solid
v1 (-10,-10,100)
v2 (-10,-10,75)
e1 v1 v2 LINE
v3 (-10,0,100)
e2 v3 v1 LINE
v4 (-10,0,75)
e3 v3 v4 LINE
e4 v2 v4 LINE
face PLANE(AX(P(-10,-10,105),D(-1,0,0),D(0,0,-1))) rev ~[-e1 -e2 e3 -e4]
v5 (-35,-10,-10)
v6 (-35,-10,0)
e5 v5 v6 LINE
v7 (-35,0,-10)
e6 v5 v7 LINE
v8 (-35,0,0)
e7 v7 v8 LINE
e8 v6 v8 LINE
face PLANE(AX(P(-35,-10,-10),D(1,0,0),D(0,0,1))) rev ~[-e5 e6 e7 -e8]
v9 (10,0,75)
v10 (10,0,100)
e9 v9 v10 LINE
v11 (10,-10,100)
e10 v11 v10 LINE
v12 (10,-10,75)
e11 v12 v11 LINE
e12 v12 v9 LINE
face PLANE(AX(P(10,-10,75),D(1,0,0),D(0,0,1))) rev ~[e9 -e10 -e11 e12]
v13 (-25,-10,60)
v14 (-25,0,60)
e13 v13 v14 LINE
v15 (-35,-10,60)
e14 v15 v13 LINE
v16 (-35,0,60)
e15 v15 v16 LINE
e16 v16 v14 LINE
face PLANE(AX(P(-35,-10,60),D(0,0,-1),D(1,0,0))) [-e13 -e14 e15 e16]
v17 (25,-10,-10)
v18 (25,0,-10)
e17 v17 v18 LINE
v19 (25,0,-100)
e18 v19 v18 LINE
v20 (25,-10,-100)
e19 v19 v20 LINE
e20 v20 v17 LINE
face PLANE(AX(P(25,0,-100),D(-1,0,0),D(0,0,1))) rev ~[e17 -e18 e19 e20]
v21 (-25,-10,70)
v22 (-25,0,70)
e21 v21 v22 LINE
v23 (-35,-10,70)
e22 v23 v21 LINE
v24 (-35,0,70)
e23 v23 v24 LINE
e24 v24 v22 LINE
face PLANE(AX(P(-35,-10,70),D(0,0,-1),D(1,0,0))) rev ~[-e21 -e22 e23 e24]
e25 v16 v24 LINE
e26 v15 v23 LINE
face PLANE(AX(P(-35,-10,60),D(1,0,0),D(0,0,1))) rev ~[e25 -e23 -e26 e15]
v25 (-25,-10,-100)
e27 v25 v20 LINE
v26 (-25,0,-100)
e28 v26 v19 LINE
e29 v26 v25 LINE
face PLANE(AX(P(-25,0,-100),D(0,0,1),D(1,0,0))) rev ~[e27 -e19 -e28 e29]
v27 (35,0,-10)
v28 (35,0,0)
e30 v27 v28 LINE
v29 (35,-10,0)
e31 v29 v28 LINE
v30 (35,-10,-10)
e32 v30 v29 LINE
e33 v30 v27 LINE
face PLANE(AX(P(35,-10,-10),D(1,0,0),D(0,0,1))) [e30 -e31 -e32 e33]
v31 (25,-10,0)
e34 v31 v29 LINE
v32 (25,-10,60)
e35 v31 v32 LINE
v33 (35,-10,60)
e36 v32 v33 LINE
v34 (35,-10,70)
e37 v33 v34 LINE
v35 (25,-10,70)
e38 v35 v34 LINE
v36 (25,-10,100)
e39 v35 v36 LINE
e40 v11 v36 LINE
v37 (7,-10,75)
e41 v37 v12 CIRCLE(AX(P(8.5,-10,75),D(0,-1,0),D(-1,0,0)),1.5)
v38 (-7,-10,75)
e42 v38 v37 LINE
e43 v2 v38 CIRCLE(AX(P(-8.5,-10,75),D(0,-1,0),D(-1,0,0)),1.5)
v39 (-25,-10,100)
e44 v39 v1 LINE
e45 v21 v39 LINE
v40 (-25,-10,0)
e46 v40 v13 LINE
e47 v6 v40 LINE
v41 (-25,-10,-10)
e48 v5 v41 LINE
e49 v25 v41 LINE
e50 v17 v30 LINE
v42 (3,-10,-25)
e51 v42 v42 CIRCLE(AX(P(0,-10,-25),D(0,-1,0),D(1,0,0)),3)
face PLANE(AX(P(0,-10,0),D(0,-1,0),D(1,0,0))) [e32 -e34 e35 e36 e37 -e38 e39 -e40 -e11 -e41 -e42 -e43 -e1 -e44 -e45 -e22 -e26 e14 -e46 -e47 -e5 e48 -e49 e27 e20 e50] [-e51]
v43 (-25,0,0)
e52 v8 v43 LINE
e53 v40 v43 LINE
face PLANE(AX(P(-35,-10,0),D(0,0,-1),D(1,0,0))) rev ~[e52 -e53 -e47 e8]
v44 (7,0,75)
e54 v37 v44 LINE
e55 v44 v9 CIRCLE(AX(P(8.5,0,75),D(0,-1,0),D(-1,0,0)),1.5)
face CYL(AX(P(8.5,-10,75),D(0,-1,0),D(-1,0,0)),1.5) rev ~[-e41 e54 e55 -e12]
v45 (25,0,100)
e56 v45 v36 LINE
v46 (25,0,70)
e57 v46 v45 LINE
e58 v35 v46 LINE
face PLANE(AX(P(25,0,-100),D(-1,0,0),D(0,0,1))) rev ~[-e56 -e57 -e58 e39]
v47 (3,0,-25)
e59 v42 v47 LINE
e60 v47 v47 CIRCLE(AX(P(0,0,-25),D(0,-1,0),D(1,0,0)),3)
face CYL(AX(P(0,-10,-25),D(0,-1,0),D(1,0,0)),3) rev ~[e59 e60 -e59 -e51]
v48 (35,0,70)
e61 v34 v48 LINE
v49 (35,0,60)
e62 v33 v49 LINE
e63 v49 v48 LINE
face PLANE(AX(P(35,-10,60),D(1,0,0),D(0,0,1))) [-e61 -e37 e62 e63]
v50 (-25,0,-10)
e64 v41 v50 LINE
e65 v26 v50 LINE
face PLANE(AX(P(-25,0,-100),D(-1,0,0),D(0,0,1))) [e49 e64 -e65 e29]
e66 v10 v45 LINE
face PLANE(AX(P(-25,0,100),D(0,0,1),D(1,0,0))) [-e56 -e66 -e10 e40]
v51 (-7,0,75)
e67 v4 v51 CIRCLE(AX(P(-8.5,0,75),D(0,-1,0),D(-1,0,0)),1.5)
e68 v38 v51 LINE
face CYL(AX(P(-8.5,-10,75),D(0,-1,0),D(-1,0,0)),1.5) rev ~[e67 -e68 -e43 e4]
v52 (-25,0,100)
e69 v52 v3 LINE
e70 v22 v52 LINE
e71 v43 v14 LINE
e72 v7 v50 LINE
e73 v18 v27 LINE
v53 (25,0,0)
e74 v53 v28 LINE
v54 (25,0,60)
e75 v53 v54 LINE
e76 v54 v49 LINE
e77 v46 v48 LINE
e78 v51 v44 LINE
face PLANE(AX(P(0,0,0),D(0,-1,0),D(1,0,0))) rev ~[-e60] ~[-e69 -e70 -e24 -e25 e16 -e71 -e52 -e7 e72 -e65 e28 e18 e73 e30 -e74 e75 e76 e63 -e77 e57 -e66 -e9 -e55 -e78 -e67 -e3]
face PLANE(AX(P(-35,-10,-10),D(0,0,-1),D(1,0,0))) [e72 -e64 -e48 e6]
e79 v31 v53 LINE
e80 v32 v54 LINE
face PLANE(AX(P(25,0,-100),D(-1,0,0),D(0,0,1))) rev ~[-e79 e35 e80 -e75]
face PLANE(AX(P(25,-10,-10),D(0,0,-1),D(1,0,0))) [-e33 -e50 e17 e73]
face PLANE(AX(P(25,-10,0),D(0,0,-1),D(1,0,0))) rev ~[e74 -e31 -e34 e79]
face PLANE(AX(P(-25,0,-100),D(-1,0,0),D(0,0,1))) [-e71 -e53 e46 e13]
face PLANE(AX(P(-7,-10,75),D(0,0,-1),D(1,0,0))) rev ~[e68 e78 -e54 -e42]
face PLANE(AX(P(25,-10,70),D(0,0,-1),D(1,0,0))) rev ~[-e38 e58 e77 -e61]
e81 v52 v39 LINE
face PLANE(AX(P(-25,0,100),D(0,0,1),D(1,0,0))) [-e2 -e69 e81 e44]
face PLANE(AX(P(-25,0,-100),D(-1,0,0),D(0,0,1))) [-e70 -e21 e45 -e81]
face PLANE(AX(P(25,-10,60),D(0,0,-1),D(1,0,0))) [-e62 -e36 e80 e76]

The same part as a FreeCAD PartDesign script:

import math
import FreeCAD as App
import Part
import Sketcher
from FreeCAD import Vector
Q = App.Units.Quantity

doc = App.newDocument("Part")
body = doc.addObject("PartDesign::Body", "Body")

# Sketch on XZ plane
sketch1 = body.newObject("Sketcher::SketchObject", "Sketch")
sketch1.AttachmentSupport = (doc.getObject("XZ_Plane"), [""])
sketch1.MapMode = "FlatFace"
sketch1.addGeometry([
    Part.LineSegment(Vector(-25, 100, 0), Vector(-25, -100, 0)),
    Part.LineSegment(Vector(-25, -100, 0), Vector(25, -100, 0)),
    Part.LineSegment(Vector(25, -100, 0), Vector(25, 100, 0)),
    Part.LineSegment(Vector(25, 100, 0), Vector(-25, 100, 0)),
], False)
sketch1.addConstraint([
    Sketcher.Constraint("Coincident", 0, 2, 1, 1),
    Sketcher.Constraint("Coincident", 1, 2, 2, 1),
    Sketcher.Constraint("Coincident", 2, 2, 3, 1),
    Sketcher.Constraint("Coincident", 3, 2, 0, 1),
    Sketcher.Constraint("Vertical", 0),
    Sketcher.Constraint("Horizontal", 1),
    Sketcher.Constraint("Vertical", 2),
    Sketcher.Constraint("Horizontal", 3),
    Sketcher.Constraint("Symmetric", 0, 2, 2, 2, -1, 1),
    Sketcher.Constraint("DistanceX", 1, 1, 1, 2, Q("50 mm")),
    Sketcher.Constraint("DistanceY", 0, 2, 0, 1, Q("200 mm")),
])
pad1 = body.newObject("PartDesign::Pad", "Pad")
pad1.Profile = sketch1
pad1.Length = 10

# Sketch on XZ plane
sketch2 = body.newObject("Sketcher::SketchObject", "Sketch001")
sketch2.AttachmentSupport = (doc.getObject("XZ_Plane"), [""])
sketch2.MapMode = "FlatFace"
sketch2.AttachmentOffset = App.Placement(Vector(0, 0, 10), App.Rotation())
sketch2.addGeometry(Part.Circle(Vector(0, -25, 0), Vector(0, 0, 1), 3), False)
sketch2.addConstraint([
    Sketcher.Constraint("PointOnObject", 0, 3, -2),
    Sketcher.Constraint("Diameter", 0, Q("6 mm")),
    Sketcher.Constraint("DistanceY", 0, 3, -1, 1, Q("25 mm")),
])
pocket1 = body.newObject("PartDesign::Pocket", "Pocket")
pocket1.Profile = sketch2
pocket1.Length = 25

# Sketch on XZ plane
sketch3 = body.newObject("Sketcher::SketchObject", "Sketch002")
sketch3.AttachmentSupport = (doc.getObject("XZ_Plane"), [""])
sketch3.MapMode = "FlatFace"
sketch3.AttachmentOffset = App.Placement(Vector(0, 0, 10), App.Rotation())
sketch3.addGeometry([
    Part.LineSegment(Vector(10, 105, 0), Vector(-10, 105, 0)),  # 0
    Part.LineSegment(Vector(-10, 105, 0), Vector(-10, 75, 0)),  # 1
    Part.ArcOfCircle(Part.Circle(Vector(-8.5, 75, 0), Vector(0, 0, 1), 1.5), math.radians(180), math.radians(360)),  # 2
    Part.LineSegment(Vector(-7, 75, 0), Vector(7, 75, 0)),  # 3
    Part.ArcOfCircle(Part.Circle(Vector(8.5, 75, 0), Vector(0, 0, 1), 1.5), math.radians(180), math.radians(360)),  # 4
    Part.LineSegment(Vector(10, 75, 0), Vector(10, 105, 0)),  # 5
], False)
sketch3.addConstraint([
    Sketcher.Constraint("Coincident", 0, 2, 1, 1),
    Sketcher.Constraint("Tangent", 1, 2, 2, 1),
    Sketcher.Constraint("Coincident", 2, 2, 3, 1),
    Sketcher.Constraint("Coincident", 3, 2, 4, 1),
    Sketcher.Constraint("Tangent", 4, 2, 5, 1),
    Sketcher.Constraint("Coincident", 5, 2, 0, 1),
    Sketcher.Constraint("Horizontal", 0),
    Sketcher.Constraint("Vertical", 1),
    Sketcher.Constraint("Horizontal", 3),
    Sketcher.Constraint("Vertical", 5),
    Sketcher.Constraint("Equal", 2, 4),
    Sketcher.Constraint("Symmetric", 2, 3, 4, 3, -2),
    Sketcher.Constraint("Horizontal", 1, 2, 2, 2),
    Sketcher.Constraint("Radius", 2, Q("1.5 mm")),
    Sketcher.Constraint("DistanceX", 0, 2, 0, 1, Q("20 mm")),
    Sketcher.Constraint("DistanceY", 1, 2, 1, 1, Q("30 mm")),
    Sketcher.Constraint("DistanceY", -1, 1, 2, 3, Q("75 mm")),
])
pocket2 = body.newObject("PartDesign::Pocket", "Pocket001")
pocket2.Profile = sketch3
pocket2.Length = 25

# Sketch on XZ plane
sketch4 = body.newObject("Sketcher::SketchObject", "Sketch003")
sketch4.AttachmentSupport = (doc.getObject("XZ_Plane"), [""])
sketch4.MapMode = "FlatFace"
sketch4.AttachmentOffset = App.Placement(Vector(0, 0, 10), App.Rotation())
sketch4.addGeometry([
    Part.LineSegment(Vector(-35, 70, 0), Vector(-35, 60, 0)),  # 0
    Part.LineSegment(Vector(-35, 60, 0), Vector(-25, 60, 0)),  # 1
    Part.LineSegment(Vector(-25, 60, 0), Vector(-25, 70, 0)),  # 2
    Part.LineSegment(Vector(-25, 70, 0), Vector(-35, 70, 0)),  # 3
    Part.LineSegment(Vector(25, 70, 0), Vector(25, 60, 0)),  # 4
    Part.LineSegment(Vector(25, 60, 0), Vector(35, 60, 0)),  # 5
    Part.LineSegment(Vector(35, 60, 0), Vector(35, 70, 0)),  # 6
    Part.LineSegment(Vector(35, 70, 0), Vector(25, 70, 0)),  # 7
    Part.LineSegment(Vector(-35, 0, 0), Vector(-35, -10, 0)),  # 8
    Part.LineSegment(Vector(-35, -10, 0), Vector(-25, -10, 0)),  # 9
    Part.LineSegment(Vector(-25, -10, 0), Vector(-25, 0, 0)),  # 10
    Part.LineSegment(Vector(-25, 0, 0), Vector(-35, 0, 0)),  # 11
    Part.LineSegment(Vector(25, 0, 0), Vector(25, -10, 0)),  # 12
    Part.LineSegment(Vector(25, -10, 0), Vector(35, -10, 0)),  # 13
    Part.LineSegment(Vector(35, -10, 0), Vector(35, 0, 0)),  # 14
    Part.LineSegment(Vector(35, 0, 0), Vector(25, 0, 0)),  # 15
], False)
sketch4.addConstraint([
    Sketcher.Constraint("Coincident", 0, 2, 1, 1),
    Sketcher.Constraint("Coincident", 1, 2, 2, 1),
    Sketcher.Constraint("Coincident", 2, 2, 3, 1),
    Sketcher.Constraint("Coincident", 3, 2, 0, 1),
    Sketcher.Constraint("Coincident", 4, 2, 5, 1),
    Sketcher.Constraint("Coincident", 5, 2, 6, 1),
    Sketcher.Constraint("Coincident", 6, 2, 7, 1),
    Sketcher.Constraint("Coincident", 7, 2, 4, 1),
    Sketcher.Constraint("Coincident", 8, 2, 9, 1),
    Sketcher.Constraint("Coincident", 9, 2, 10, 1),
    Sketcher.Constraint("Coincident", 10, 2, 11, 1),
    Sketcher.Constraint("Coincident", 11, 2, 8, 1),
    Sketcher.Constraint("Coincident", 12, 2, 13, 1),
    Sketcher.Constraint("Coincident", 13, 2, 14, 1),
    Sketcher.Constraint("Coincident", 14, 2, 15, 1),
    Sketcher.Constraint("Coincident", 15, 2, 12, 1),
    Sketcher.Constraint("Vertical", 0),
    Sketcher.Constraint("Horizontal", 1),
    Sketcher.Constraint("Vertical", 2),
    Sketcher.Constraint("Horizontal", 3),
    Sketcher.Constraint("Vertical", 4),
    Sketcher.Constraint("Horizontal", 5),
    Sketcher.Constraint("Vertical", 6),
    Sketcher.Constraint("Horizontal", 7),
    Sketcher.Constraint("Vertical", 8),
    Sketcher.Constraint("Horizontal", 9),
    Sketcher.Constraint("Vertical", 10),
    Sketcher.Constraint("Horizontal", 11),
    Sketcher.Constraint("Vertical", 12),
    Sketcher.Constraint("Horizontal", 13),
    Sketcher.Constraint("Vertical", 14),
    Sketcher.Constraint("Horizontal", 15),
    Sketcher.Constraint("Symmetric", 11, 2, 14, 2, -1, 1),
    Sketcher.Constraint("Symmetric", 1, 2, 4, 2, -2),
    Sketcher.Constraint("Symmetric", 3, 2, 6, 2, -2),
    Sketcher.Constraint("Symmetric", 9, 2, 12, 2, -2),
    Sketcher.Constraint("PointOnObject", 10, 2, -1),
    Sketcher.Constraint("Vertical", 3, 2, 8, 2),
    Sketcher.Constraint("Vertical", 2, 2, 9, 2),
    Sketcher.Constraint("Equal", 15, 0),
    Sketcher.Constraint("Equal", 6, 8),
    Sketcher.Constraint("DistanceX", 1, 1, 1, 2, Q("10 mm")),
    Sketcher.Constraint("DistanceX", 0, 2, -1, 1, Q("35 mm")),
    Sketcher.Constraint("DistanceY", -1, 1, 0, 2, Q("60 mm")),
])
pad2 = body.newObject("PartDesign::Pad", "Pad001")
pad2.Profile = sketch4
pad2.Length = 10
pad2.Reversed = True

doc.recompute()
